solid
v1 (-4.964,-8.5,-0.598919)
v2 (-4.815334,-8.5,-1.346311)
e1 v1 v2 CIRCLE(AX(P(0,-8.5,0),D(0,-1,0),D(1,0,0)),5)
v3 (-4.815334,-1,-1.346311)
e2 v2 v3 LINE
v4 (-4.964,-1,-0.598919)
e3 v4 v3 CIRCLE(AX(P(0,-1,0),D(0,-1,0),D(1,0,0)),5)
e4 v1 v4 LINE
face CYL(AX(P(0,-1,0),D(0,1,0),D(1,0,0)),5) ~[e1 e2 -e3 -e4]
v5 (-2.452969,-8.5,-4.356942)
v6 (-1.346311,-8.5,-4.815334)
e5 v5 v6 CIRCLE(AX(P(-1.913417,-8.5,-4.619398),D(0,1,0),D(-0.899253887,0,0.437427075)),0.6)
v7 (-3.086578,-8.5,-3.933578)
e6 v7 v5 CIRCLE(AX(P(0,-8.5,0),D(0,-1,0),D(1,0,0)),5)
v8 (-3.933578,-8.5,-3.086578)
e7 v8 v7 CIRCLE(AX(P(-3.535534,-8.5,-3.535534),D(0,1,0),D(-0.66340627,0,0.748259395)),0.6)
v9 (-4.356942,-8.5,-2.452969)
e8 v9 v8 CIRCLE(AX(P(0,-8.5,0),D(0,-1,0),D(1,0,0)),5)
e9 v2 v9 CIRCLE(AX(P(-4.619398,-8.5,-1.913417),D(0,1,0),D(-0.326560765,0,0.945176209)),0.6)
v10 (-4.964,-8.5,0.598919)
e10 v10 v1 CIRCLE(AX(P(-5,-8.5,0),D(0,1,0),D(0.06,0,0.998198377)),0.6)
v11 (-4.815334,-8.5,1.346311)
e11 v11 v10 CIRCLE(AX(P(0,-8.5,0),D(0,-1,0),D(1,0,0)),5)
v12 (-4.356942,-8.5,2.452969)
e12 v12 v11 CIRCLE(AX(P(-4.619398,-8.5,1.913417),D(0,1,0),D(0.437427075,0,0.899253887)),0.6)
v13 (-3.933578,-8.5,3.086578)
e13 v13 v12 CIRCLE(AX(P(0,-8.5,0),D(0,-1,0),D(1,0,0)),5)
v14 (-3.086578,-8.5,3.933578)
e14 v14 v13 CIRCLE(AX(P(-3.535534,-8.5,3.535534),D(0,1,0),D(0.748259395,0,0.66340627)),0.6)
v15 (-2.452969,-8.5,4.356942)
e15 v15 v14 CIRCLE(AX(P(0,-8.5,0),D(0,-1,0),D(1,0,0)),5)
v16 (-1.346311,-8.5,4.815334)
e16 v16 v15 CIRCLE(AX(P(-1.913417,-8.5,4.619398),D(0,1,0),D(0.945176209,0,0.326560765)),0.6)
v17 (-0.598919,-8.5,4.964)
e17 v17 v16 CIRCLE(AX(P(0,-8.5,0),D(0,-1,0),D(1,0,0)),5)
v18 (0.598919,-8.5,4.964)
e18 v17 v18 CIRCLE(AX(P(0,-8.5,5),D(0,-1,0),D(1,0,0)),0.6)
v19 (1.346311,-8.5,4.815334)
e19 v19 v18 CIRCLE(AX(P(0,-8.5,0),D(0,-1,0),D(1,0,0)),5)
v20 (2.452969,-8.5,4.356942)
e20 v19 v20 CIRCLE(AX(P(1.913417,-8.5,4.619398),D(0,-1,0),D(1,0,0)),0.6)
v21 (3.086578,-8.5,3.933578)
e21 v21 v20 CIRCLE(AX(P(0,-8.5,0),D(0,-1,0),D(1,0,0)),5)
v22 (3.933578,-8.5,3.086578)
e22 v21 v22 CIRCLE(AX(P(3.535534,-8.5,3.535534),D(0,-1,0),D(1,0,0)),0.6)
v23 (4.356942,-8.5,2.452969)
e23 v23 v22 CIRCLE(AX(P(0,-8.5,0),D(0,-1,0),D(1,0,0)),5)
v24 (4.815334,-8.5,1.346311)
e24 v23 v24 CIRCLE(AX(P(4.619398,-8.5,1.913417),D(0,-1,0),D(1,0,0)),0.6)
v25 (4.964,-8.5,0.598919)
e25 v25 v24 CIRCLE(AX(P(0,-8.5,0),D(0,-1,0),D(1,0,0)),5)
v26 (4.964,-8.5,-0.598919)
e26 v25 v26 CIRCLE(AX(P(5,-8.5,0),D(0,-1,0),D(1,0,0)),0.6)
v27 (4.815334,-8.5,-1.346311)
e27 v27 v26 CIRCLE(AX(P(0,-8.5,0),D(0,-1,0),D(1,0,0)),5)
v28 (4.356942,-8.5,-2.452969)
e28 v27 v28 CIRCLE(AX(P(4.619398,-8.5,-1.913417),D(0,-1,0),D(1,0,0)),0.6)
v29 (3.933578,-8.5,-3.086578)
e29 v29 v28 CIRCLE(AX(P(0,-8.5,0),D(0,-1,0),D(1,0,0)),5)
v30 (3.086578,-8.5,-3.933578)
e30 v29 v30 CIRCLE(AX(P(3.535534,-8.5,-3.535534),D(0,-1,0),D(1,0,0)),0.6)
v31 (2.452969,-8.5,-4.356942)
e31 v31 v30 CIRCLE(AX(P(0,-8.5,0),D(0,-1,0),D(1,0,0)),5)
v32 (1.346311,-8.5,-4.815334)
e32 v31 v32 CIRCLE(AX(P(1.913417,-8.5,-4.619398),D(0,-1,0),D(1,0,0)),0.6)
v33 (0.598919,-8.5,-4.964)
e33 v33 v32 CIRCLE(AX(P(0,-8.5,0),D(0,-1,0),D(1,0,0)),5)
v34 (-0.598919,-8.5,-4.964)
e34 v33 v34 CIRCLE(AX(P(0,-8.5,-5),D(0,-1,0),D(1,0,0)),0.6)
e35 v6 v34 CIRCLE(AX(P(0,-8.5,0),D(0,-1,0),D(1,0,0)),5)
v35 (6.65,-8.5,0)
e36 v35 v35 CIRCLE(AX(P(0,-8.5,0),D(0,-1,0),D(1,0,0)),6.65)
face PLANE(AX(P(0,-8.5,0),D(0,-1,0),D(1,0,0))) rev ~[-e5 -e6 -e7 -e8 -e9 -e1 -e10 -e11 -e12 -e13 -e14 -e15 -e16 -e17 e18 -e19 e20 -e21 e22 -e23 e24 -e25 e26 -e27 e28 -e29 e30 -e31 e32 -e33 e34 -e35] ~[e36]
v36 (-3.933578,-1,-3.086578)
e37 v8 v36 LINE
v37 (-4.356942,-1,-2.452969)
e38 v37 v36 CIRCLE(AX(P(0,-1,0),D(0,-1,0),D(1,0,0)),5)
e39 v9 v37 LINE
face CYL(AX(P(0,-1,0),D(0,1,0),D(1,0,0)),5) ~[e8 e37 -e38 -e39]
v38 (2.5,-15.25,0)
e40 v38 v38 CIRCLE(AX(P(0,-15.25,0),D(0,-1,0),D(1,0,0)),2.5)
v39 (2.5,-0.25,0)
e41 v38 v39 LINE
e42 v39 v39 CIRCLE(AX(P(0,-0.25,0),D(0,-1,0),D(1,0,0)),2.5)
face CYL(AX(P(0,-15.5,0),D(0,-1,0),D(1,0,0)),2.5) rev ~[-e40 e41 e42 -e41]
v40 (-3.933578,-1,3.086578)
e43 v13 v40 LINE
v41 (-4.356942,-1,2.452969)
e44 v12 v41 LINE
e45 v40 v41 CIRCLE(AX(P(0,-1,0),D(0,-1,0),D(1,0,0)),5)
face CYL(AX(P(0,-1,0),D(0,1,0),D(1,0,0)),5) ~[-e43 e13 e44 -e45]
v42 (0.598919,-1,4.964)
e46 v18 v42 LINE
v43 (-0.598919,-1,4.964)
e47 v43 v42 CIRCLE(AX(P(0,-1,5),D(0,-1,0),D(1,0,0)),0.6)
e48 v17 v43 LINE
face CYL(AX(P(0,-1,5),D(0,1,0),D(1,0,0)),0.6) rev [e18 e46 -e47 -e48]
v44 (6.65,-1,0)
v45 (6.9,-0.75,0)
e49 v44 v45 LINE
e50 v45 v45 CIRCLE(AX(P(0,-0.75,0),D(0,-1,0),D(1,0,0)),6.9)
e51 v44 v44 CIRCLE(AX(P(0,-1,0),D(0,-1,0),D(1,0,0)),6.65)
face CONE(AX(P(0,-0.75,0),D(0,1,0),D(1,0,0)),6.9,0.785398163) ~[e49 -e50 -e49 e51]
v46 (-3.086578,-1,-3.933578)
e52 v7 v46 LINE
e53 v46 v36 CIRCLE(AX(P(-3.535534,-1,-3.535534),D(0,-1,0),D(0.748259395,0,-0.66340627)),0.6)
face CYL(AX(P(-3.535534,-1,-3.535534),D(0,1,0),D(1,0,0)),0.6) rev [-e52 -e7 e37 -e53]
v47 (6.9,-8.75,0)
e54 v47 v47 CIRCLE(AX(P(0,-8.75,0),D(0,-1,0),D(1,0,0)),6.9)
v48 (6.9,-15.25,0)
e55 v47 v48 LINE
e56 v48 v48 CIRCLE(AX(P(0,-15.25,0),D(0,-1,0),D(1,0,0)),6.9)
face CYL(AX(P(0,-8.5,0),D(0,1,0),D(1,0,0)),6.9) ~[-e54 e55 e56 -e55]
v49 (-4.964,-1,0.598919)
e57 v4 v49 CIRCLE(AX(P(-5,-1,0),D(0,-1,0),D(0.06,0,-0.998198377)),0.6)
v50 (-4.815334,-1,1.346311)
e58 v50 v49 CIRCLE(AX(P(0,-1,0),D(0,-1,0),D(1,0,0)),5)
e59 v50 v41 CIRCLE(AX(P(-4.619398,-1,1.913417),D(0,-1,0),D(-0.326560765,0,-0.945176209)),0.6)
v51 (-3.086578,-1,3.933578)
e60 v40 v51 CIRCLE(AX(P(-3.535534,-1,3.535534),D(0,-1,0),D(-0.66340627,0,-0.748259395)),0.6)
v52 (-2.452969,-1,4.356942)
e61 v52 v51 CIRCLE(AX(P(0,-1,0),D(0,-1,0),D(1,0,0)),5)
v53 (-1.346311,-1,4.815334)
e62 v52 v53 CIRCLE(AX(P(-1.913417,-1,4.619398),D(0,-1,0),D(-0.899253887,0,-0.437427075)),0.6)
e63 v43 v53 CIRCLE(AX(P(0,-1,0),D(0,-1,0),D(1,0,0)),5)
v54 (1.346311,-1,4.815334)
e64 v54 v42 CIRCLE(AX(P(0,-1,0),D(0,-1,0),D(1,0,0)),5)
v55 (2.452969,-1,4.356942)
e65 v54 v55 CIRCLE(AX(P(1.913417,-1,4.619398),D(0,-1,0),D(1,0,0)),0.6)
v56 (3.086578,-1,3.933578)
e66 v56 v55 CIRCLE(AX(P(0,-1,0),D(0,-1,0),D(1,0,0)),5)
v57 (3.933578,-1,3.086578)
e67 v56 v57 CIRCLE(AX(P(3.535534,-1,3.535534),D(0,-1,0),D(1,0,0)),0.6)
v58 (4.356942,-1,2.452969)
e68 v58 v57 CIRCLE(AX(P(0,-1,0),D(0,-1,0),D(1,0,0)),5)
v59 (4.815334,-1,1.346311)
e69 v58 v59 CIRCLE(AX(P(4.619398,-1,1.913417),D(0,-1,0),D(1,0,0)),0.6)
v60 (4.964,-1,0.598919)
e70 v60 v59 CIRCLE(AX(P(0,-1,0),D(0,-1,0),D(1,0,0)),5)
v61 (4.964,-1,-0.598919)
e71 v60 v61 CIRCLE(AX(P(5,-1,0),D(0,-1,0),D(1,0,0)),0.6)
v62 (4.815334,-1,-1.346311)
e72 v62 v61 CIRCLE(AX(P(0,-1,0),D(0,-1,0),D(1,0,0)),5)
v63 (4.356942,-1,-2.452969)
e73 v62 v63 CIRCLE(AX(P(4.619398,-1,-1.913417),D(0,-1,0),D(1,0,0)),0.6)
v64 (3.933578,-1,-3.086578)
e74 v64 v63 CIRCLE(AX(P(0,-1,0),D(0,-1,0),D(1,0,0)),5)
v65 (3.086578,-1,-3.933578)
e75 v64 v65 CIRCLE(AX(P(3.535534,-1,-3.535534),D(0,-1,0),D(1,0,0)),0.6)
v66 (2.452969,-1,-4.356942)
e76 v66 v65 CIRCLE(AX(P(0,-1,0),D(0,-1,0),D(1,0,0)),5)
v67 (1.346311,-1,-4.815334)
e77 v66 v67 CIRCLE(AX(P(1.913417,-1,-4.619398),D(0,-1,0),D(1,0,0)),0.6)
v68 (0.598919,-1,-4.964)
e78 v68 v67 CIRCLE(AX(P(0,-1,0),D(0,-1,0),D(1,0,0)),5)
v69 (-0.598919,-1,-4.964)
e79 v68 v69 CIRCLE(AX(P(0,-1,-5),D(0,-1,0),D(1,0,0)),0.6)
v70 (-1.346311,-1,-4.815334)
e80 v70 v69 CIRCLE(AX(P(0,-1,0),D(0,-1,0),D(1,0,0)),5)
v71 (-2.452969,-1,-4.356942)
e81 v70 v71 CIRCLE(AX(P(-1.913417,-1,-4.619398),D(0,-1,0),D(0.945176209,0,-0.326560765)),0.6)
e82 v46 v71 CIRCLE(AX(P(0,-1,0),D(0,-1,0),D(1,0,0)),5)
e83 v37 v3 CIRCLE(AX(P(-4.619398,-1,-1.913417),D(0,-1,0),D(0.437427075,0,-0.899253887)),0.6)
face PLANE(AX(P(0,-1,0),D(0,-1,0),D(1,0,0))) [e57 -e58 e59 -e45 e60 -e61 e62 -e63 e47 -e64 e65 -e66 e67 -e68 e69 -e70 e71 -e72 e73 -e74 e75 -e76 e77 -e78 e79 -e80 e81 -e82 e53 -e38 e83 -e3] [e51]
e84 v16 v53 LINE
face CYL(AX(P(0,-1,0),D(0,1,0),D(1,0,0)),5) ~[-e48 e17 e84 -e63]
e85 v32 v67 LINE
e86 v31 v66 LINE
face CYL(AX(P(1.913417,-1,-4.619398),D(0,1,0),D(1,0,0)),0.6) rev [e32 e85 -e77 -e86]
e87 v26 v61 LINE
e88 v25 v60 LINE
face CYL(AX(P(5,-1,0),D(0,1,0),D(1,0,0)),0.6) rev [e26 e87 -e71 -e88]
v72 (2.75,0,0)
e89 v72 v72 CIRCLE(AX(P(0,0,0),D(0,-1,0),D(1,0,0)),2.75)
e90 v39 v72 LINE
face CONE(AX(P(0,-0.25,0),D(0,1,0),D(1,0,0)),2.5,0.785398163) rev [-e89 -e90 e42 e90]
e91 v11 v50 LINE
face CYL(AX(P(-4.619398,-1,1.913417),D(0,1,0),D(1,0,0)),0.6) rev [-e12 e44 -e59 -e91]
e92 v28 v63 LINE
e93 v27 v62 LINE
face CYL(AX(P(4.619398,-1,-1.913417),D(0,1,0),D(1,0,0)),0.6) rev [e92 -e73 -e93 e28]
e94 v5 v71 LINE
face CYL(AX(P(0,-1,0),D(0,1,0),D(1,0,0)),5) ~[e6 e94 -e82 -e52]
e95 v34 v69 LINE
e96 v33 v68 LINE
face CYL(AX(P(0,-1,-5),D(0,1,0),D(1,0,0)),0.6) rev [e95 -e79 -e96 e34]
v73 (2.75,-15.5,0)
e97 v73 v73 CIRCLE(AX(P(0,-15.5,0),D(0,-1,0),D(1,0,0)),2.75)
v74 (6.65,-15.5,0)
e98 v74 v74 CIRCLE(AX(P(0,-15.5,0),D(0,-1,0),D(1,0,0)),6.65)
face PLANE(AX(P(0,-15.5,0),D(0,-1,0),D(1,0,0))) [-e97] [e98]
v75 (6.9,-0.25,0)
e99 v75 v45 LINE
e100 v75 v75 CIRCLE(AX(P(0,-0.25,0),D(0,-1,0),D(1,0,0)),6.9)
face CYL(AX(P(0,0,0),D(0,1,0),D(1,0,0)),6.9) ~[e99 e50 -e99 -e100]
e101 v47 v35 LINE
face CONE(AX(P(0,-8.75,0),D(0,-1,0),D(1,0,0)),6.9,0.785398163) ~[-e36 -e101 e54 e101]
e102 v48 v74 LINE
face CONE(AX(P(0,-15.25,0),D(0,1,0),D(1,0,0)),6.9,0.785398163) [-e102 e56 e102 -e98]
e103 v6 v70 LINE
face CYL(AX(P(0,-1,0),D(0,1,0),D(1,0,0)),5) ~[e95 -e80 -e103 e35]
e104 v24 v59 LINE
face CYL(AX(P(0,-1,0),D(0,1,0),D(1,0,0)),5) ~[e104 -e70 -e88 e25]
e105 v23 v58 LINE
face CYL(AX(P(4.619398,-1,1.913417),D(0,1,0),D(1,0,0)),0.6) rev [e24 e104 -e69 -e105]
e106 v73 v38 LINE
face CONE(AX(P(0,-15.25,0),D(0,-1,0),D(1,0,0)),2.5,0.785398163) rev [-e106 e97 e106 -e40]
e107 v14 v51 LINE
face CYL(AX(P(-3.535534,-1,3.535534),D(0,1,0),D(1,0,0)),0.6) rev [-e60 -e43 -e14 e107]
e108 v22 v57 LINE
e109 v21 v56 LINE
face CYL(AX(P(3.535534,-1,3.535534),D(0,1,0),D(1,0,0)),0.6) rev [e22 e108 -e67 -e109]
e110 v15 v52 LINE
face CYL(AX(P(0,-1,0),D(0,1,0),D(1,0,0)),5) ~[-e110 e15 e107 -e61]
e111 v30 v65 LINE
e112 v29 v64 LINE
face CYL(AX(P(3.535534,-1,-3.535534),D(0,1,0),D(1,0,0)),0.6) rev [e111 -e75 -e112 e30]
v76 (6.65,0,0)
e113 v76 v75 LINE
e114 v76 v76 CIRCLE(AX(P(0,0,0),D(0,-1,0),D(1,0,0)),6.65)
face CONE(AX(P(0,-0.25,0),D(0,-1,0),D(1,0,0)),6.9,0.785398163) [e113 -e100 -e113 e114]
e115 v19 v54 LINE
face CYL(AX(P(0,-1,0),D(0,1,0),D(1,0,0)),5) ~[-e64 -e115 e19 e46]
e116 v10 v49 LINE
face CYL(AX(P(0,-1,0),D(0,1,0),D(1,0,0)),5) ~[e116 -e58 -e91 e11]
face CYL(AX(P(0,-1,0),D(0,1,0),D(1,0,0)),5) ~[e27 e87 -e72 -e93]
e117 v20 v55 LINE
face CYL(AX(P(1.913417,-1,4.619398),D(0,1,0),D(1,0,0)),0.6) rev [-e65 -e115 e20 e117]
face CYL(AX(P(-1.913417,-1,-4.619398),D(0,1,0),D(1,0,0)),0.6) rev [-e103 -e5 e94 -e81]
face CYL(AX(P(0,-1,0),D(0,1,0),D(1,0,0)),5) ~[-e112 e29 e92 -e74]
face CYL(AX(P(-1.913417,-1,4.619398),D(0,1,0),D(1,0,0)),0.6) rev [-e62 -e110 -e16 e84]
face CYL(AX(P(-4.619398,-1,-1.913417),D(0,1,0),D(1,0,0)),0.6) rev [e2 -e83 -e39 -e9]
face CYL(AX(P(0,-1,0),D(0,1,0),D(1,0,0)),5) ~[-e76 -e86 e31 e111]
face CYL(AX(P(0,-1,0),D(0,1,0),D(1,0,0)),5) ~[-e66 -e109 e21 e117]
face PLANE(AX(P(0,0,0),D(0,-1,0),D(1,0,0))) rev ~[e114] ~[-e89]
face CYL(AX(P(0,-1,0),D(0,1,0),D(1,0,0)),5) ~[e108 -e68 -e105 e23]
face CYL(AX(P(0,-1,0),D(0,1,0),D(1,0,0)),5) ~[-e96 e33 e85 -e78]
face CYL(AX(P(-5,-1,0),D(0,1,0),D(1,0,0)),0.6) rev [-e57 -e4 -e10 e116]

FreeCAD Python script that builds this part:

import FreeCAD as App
import Part
import Sketcher
from FreeCAD import Vector
Q = App.Units.Quantity


def edges_at(feature, points):
    """Names of the edges that pass closest to the given points."""
    edges = feature.Shape.Edges
    near = lambda p: min(range(len(edges)), key=lambda i: edges[i].distToShape(Part.Vertex(*p))[0])
    return sorted({f"Edge{near(p) + 1}" for p in points})

doc = App.newDocument("Part")
body = doc.addObject("PartDesign::Body", "Body")

# Sketch on XZ plane
sketch1 = body.newObject("Sketcher::SketchObject", "Sketch")
sketch1.AttachmentSupport = (doc.getObject("XZ_Plane"), [""])
sketch1.MapMode = "FlatFace"
sketch1.addGeometry(Part.Circle(Vector(0, 0, 0), Vector(0, 0, 1), 7), False)
sketch1.addConstraint([
    Sketcher.Constraint("Coincident", 0, 3, -1, 1),
    Sketcher.Constraint("Diameter", 0, Q("13.8 mm")),
])
pad1 = body.newObject("PartDesign::Pad", "Pad")
pad1.Profile = sketch1
pad1.Length = 1

# Sketch on XZ plane
sketch2 = body.newObject("Sketcher::SketchObject", "Sketch001")
sketch2.AttachmentSupport = (doc.getObject("XZ_Plane"), [""])
sketch2.MapMode = "FlatFace"
sketch2.AttachmentOffset = App.Placement(Vector(0, 0, 1), App.Rotation())
sketch2.addGeometry(Part.Circle(Vector(0, 0, 0), Vector(0, 0, 1), 5), False)
sketch2.addConstraint([
    Sketcher.Constraint("Coincident", 0, 3, -1, 1),
    Sketcher.Constraint("Diameter", 0, Q("10 mm")),
])
pad2 = body.newObject("PartDesign::Pad", "Pad001")
pad2.Profile = sketch2
pad2.Length = 7.5

# Sketch on XZ plane
sketch3 = body.newObject("Sketcher::SketchObject", "Sketch002")
sketch3.AttachmentSupport = (doc.getObject("XZ_Plane"), [""])
sketch3.MapMode = "FlatFace"
sketch3.AttachmentOffset = App.Placement(Vector(0, 0, 8.5), App.Rotation())
sketch3.addGeometry(Part.Circle(Vector(0, 0, 0), Vector(0, 0, 1), 7), False)
sketch3.addConstraint([
    Sketcher.Constraint("Coincident", 0, 3, -1, 1),
    Sketcher.Constraint("Diameter", 0, Q("13.8 mm")),
])
pad3 = body.newObject("PartDesign::Pad", "Pad002")
pad3.Profile = sketch3
pad3.Length = 7

# Sketch on XZ plane
sketch4 = body.newObject("Sketcher::SketchObject", "Sketch003")
sketch4.AttachmentSupport = (doc.getObject("XZ_Plane"), [""])
sketch4.MapMode = "FlatFace"
sketch4.AttachmentOffset = App.Placement(Vector(0, 0, 1), App.Rotation())
sketch4.addGeometry([
    Part.Circle(Vector(0, 5, 0), Vector(0, 0, 1), 0.6),  # 0
    Part.Circle(Vector(-1.9, 4.6, 0), Vector(0, 0, 1), 0.6),  # 1
    Part.Circle(Vector(-3.5, 3.5, 0), Vector(0, 0, 1), 0.6),  # 2
    Part.Circle(Vector(-4.6, 1.9, 0), Vector(0, 0, 1), 0.6),  # 3
    Part.Circle(Vector(-5, 0, 0), Vector(0, 0, 1), 0.6),  # 4
    Part.Circle(Vector(-4.6, -1.9, 0), Vector(0, 0, 1), 0.6),  # 5
    Part.Circle(Vector(-3.5, -3.5, 0), Vector(0, 0, 1), 0.6),  # 6
    Part.Circle(Vector(-1.9, -4.6, 0), Vector(0, 0, 1), 0.6),  # 7
    Part.Circle(Vector(0, -5, 0), Vector(0, 0, 1), 0.6),  # 8
    Part.Circle(Vector(1.9, -4.6, 0), Vector(0, 0, 1), 0.6),  # 9
    Part.Circle(Vector(3.5, -3.5, 0), Vector(0, 0, 1), 0.6),  # 10
    Part.Circle(Vector(4.6, -1.9, 0), Vector(0, 0, 1), 0.6),  # 11
    Part.Circle(Vector(5, 0, 0), Vector(0, 0, 1), 0.6),  # 12
    Part.Circle(Vector(4.6, 1.9, 0), Vector(0, 0, 1), 0.6),  # 13
    Part.Circle(Vector(3.5, 3.5, 0), Vector(0, 0, 1), 0.6),  # 14
    Part.Circle(Vector(1.9, 4.6, 0), Vector(0, 0, 1), 0.6),  # 15
], False)
sketch4.addConstraint([
    Sketcher.Constraint("Equal", 0, 1),
    Sketcher.Constraint("Equal", 1, 2),
    Sketcher.Constraint("Equal", 2, 3),
    Sketcher.Constraint("Equal", 3, 4),
    Sketcher.Constraint("Equal", 4, 5),
    Sketcher.Constraint("Equal", 5, 6),
    Sketcher.Constraint("Equal", 6, 7),
    Sketcher.Constraint("Equal", 7, 8),
    Sketcher.Constraint("Equal", 8, 9),
    Sketcher.Constraint("Equal", 9, 10),
    Sketcher.Constraint("Equal", 10, 11),
    Sketcher.Constraint("Equal", 11, 12),
    Sketcher.Constraint("Equal", 12, 13),
    Sketcher.Constraint("Equal", 13, 14),
    Sketcher.Constraint("Equal", 14, 15),
    Sketcher.Constraint("Symmetric", 0, 3, 8, 3, -1, 1),
    Sketcher.Constraint("Symmetric", 1, 3, 9, 3, -1, 1),
    Sketcher.Constraint("Symmetric", 2, 3, 10, 3, -1, 1),
    Sketcher.Constraint("Symmetric", 3, 3, 11, 3, -1, 1),
    Sketcher.Constraint("Symmetric", 4, 3, 12, 3, -1, 1),
    Sketcher.Constraint("Symmetric", 5, 3, 13, 3, -1, 1),
    Sketcher.Constraint("Symmetric", 6, 3, 14, 3, -1, 1),
    Sketcher.Constraint("Symmetric", 7, 3, 15, 3, -1, 1),
    Sketcher.Constraint("Symmetric", 7, 3, 9, 3, -2),
    Sketcher.Constraint("Symmetric", 6, 3, 10, 3, -2),
    Sketcher.Constraint("Symmetric", 5, 3, 11, 3, -2),
    Sketcher.Constraint("PointOnObject", 0, 3, -2),
    Sketcher.Constraint("PointOnObject", 4, 3, -1),
    Sketcher.Constraint("Diameter", 0, Q("1.2 mm")),
    Sketcher.Constraint("DistanceY", -1, 1, 0, 3, Q("5 mm")),
    Sketcher.Constraint("DistanceX", 4, 3, -1, 1, Q("5 mm")),
    Sketcher.Constraint("DistanceY", -1, 1, 1, 3, Q("4.619398 mm")),
    Sketcher.Constraint("DistanceX", 3, 3, -1, 1, Q("4.619398 mm")),
    Sketcher.Constraint("DistanceX", 3, 3, 1, 3, Q("2.705981 mm")),
    Sketcher.Constraint("DistanceY", 3, 3, 1, 3, Q("2.705981 mm")),
    Sketcher.Constraint("DistanceY", 5, 3, 2, 3, Q("5.448951 mm")),
    Sketcher.Constraint("DistanceX", 6, 3, 9, 3, Q("5.448951 mm")),
])
pocket1 = body.newObject("PartDesign::Pocket", "Pocket")
pocket1.Profile = sketch4
pocket1.Length = 7.5
pocket1.Reversed = True

# Sketch on XZ plane
sketch5 = body.newObject("Sketcher::SketchObject", "Sketch004")
sketch5.AttachmentSupport = (doc.getObject("XZ_Plane"), [""])
sketch5.MapMode = "FlatFace"
sketch5.AttachmentOffset = App.Placement(Vector(0, 0, 15.5), App.Rotation())
sketch5.addGeometry(Part.Circle(Vector(0, 0, 0), Vector(0, 0, 1), 2.5), False)
sketch5.addConstraint([
    Sketcher.Constraint("Coincident", 0, 3, -1, 1),
    Sketcher.Constraint("Diameter", 0, Q("5 mm")),
])
pocket2 = body.newObject("PartDesign::Pocket", "Pocket001")
pocket2.Profile = sketch5
pocket2.Type = "ThroughAll"
doc.recompute()

chamfer = body.newObject("PartDesign::Chamfer", "Chamfer")
chamfer.Base = (pocket2, edges_at(pocket2, [
    (6.9, -12, 0),
    (-6.9, -8.5, 0),
    (-6.9, -15.5, 0),
    (6.9, -0.5, 0),
    (-6.9, 0, 0),
    (-6.9, -1, 0),
    (-2.5, -15.5, 0),
    (2.5, -7.75, 0),
    (-2.5, 0, 0),
]))
chamfer.Size = 0.25

doc.recompute()
